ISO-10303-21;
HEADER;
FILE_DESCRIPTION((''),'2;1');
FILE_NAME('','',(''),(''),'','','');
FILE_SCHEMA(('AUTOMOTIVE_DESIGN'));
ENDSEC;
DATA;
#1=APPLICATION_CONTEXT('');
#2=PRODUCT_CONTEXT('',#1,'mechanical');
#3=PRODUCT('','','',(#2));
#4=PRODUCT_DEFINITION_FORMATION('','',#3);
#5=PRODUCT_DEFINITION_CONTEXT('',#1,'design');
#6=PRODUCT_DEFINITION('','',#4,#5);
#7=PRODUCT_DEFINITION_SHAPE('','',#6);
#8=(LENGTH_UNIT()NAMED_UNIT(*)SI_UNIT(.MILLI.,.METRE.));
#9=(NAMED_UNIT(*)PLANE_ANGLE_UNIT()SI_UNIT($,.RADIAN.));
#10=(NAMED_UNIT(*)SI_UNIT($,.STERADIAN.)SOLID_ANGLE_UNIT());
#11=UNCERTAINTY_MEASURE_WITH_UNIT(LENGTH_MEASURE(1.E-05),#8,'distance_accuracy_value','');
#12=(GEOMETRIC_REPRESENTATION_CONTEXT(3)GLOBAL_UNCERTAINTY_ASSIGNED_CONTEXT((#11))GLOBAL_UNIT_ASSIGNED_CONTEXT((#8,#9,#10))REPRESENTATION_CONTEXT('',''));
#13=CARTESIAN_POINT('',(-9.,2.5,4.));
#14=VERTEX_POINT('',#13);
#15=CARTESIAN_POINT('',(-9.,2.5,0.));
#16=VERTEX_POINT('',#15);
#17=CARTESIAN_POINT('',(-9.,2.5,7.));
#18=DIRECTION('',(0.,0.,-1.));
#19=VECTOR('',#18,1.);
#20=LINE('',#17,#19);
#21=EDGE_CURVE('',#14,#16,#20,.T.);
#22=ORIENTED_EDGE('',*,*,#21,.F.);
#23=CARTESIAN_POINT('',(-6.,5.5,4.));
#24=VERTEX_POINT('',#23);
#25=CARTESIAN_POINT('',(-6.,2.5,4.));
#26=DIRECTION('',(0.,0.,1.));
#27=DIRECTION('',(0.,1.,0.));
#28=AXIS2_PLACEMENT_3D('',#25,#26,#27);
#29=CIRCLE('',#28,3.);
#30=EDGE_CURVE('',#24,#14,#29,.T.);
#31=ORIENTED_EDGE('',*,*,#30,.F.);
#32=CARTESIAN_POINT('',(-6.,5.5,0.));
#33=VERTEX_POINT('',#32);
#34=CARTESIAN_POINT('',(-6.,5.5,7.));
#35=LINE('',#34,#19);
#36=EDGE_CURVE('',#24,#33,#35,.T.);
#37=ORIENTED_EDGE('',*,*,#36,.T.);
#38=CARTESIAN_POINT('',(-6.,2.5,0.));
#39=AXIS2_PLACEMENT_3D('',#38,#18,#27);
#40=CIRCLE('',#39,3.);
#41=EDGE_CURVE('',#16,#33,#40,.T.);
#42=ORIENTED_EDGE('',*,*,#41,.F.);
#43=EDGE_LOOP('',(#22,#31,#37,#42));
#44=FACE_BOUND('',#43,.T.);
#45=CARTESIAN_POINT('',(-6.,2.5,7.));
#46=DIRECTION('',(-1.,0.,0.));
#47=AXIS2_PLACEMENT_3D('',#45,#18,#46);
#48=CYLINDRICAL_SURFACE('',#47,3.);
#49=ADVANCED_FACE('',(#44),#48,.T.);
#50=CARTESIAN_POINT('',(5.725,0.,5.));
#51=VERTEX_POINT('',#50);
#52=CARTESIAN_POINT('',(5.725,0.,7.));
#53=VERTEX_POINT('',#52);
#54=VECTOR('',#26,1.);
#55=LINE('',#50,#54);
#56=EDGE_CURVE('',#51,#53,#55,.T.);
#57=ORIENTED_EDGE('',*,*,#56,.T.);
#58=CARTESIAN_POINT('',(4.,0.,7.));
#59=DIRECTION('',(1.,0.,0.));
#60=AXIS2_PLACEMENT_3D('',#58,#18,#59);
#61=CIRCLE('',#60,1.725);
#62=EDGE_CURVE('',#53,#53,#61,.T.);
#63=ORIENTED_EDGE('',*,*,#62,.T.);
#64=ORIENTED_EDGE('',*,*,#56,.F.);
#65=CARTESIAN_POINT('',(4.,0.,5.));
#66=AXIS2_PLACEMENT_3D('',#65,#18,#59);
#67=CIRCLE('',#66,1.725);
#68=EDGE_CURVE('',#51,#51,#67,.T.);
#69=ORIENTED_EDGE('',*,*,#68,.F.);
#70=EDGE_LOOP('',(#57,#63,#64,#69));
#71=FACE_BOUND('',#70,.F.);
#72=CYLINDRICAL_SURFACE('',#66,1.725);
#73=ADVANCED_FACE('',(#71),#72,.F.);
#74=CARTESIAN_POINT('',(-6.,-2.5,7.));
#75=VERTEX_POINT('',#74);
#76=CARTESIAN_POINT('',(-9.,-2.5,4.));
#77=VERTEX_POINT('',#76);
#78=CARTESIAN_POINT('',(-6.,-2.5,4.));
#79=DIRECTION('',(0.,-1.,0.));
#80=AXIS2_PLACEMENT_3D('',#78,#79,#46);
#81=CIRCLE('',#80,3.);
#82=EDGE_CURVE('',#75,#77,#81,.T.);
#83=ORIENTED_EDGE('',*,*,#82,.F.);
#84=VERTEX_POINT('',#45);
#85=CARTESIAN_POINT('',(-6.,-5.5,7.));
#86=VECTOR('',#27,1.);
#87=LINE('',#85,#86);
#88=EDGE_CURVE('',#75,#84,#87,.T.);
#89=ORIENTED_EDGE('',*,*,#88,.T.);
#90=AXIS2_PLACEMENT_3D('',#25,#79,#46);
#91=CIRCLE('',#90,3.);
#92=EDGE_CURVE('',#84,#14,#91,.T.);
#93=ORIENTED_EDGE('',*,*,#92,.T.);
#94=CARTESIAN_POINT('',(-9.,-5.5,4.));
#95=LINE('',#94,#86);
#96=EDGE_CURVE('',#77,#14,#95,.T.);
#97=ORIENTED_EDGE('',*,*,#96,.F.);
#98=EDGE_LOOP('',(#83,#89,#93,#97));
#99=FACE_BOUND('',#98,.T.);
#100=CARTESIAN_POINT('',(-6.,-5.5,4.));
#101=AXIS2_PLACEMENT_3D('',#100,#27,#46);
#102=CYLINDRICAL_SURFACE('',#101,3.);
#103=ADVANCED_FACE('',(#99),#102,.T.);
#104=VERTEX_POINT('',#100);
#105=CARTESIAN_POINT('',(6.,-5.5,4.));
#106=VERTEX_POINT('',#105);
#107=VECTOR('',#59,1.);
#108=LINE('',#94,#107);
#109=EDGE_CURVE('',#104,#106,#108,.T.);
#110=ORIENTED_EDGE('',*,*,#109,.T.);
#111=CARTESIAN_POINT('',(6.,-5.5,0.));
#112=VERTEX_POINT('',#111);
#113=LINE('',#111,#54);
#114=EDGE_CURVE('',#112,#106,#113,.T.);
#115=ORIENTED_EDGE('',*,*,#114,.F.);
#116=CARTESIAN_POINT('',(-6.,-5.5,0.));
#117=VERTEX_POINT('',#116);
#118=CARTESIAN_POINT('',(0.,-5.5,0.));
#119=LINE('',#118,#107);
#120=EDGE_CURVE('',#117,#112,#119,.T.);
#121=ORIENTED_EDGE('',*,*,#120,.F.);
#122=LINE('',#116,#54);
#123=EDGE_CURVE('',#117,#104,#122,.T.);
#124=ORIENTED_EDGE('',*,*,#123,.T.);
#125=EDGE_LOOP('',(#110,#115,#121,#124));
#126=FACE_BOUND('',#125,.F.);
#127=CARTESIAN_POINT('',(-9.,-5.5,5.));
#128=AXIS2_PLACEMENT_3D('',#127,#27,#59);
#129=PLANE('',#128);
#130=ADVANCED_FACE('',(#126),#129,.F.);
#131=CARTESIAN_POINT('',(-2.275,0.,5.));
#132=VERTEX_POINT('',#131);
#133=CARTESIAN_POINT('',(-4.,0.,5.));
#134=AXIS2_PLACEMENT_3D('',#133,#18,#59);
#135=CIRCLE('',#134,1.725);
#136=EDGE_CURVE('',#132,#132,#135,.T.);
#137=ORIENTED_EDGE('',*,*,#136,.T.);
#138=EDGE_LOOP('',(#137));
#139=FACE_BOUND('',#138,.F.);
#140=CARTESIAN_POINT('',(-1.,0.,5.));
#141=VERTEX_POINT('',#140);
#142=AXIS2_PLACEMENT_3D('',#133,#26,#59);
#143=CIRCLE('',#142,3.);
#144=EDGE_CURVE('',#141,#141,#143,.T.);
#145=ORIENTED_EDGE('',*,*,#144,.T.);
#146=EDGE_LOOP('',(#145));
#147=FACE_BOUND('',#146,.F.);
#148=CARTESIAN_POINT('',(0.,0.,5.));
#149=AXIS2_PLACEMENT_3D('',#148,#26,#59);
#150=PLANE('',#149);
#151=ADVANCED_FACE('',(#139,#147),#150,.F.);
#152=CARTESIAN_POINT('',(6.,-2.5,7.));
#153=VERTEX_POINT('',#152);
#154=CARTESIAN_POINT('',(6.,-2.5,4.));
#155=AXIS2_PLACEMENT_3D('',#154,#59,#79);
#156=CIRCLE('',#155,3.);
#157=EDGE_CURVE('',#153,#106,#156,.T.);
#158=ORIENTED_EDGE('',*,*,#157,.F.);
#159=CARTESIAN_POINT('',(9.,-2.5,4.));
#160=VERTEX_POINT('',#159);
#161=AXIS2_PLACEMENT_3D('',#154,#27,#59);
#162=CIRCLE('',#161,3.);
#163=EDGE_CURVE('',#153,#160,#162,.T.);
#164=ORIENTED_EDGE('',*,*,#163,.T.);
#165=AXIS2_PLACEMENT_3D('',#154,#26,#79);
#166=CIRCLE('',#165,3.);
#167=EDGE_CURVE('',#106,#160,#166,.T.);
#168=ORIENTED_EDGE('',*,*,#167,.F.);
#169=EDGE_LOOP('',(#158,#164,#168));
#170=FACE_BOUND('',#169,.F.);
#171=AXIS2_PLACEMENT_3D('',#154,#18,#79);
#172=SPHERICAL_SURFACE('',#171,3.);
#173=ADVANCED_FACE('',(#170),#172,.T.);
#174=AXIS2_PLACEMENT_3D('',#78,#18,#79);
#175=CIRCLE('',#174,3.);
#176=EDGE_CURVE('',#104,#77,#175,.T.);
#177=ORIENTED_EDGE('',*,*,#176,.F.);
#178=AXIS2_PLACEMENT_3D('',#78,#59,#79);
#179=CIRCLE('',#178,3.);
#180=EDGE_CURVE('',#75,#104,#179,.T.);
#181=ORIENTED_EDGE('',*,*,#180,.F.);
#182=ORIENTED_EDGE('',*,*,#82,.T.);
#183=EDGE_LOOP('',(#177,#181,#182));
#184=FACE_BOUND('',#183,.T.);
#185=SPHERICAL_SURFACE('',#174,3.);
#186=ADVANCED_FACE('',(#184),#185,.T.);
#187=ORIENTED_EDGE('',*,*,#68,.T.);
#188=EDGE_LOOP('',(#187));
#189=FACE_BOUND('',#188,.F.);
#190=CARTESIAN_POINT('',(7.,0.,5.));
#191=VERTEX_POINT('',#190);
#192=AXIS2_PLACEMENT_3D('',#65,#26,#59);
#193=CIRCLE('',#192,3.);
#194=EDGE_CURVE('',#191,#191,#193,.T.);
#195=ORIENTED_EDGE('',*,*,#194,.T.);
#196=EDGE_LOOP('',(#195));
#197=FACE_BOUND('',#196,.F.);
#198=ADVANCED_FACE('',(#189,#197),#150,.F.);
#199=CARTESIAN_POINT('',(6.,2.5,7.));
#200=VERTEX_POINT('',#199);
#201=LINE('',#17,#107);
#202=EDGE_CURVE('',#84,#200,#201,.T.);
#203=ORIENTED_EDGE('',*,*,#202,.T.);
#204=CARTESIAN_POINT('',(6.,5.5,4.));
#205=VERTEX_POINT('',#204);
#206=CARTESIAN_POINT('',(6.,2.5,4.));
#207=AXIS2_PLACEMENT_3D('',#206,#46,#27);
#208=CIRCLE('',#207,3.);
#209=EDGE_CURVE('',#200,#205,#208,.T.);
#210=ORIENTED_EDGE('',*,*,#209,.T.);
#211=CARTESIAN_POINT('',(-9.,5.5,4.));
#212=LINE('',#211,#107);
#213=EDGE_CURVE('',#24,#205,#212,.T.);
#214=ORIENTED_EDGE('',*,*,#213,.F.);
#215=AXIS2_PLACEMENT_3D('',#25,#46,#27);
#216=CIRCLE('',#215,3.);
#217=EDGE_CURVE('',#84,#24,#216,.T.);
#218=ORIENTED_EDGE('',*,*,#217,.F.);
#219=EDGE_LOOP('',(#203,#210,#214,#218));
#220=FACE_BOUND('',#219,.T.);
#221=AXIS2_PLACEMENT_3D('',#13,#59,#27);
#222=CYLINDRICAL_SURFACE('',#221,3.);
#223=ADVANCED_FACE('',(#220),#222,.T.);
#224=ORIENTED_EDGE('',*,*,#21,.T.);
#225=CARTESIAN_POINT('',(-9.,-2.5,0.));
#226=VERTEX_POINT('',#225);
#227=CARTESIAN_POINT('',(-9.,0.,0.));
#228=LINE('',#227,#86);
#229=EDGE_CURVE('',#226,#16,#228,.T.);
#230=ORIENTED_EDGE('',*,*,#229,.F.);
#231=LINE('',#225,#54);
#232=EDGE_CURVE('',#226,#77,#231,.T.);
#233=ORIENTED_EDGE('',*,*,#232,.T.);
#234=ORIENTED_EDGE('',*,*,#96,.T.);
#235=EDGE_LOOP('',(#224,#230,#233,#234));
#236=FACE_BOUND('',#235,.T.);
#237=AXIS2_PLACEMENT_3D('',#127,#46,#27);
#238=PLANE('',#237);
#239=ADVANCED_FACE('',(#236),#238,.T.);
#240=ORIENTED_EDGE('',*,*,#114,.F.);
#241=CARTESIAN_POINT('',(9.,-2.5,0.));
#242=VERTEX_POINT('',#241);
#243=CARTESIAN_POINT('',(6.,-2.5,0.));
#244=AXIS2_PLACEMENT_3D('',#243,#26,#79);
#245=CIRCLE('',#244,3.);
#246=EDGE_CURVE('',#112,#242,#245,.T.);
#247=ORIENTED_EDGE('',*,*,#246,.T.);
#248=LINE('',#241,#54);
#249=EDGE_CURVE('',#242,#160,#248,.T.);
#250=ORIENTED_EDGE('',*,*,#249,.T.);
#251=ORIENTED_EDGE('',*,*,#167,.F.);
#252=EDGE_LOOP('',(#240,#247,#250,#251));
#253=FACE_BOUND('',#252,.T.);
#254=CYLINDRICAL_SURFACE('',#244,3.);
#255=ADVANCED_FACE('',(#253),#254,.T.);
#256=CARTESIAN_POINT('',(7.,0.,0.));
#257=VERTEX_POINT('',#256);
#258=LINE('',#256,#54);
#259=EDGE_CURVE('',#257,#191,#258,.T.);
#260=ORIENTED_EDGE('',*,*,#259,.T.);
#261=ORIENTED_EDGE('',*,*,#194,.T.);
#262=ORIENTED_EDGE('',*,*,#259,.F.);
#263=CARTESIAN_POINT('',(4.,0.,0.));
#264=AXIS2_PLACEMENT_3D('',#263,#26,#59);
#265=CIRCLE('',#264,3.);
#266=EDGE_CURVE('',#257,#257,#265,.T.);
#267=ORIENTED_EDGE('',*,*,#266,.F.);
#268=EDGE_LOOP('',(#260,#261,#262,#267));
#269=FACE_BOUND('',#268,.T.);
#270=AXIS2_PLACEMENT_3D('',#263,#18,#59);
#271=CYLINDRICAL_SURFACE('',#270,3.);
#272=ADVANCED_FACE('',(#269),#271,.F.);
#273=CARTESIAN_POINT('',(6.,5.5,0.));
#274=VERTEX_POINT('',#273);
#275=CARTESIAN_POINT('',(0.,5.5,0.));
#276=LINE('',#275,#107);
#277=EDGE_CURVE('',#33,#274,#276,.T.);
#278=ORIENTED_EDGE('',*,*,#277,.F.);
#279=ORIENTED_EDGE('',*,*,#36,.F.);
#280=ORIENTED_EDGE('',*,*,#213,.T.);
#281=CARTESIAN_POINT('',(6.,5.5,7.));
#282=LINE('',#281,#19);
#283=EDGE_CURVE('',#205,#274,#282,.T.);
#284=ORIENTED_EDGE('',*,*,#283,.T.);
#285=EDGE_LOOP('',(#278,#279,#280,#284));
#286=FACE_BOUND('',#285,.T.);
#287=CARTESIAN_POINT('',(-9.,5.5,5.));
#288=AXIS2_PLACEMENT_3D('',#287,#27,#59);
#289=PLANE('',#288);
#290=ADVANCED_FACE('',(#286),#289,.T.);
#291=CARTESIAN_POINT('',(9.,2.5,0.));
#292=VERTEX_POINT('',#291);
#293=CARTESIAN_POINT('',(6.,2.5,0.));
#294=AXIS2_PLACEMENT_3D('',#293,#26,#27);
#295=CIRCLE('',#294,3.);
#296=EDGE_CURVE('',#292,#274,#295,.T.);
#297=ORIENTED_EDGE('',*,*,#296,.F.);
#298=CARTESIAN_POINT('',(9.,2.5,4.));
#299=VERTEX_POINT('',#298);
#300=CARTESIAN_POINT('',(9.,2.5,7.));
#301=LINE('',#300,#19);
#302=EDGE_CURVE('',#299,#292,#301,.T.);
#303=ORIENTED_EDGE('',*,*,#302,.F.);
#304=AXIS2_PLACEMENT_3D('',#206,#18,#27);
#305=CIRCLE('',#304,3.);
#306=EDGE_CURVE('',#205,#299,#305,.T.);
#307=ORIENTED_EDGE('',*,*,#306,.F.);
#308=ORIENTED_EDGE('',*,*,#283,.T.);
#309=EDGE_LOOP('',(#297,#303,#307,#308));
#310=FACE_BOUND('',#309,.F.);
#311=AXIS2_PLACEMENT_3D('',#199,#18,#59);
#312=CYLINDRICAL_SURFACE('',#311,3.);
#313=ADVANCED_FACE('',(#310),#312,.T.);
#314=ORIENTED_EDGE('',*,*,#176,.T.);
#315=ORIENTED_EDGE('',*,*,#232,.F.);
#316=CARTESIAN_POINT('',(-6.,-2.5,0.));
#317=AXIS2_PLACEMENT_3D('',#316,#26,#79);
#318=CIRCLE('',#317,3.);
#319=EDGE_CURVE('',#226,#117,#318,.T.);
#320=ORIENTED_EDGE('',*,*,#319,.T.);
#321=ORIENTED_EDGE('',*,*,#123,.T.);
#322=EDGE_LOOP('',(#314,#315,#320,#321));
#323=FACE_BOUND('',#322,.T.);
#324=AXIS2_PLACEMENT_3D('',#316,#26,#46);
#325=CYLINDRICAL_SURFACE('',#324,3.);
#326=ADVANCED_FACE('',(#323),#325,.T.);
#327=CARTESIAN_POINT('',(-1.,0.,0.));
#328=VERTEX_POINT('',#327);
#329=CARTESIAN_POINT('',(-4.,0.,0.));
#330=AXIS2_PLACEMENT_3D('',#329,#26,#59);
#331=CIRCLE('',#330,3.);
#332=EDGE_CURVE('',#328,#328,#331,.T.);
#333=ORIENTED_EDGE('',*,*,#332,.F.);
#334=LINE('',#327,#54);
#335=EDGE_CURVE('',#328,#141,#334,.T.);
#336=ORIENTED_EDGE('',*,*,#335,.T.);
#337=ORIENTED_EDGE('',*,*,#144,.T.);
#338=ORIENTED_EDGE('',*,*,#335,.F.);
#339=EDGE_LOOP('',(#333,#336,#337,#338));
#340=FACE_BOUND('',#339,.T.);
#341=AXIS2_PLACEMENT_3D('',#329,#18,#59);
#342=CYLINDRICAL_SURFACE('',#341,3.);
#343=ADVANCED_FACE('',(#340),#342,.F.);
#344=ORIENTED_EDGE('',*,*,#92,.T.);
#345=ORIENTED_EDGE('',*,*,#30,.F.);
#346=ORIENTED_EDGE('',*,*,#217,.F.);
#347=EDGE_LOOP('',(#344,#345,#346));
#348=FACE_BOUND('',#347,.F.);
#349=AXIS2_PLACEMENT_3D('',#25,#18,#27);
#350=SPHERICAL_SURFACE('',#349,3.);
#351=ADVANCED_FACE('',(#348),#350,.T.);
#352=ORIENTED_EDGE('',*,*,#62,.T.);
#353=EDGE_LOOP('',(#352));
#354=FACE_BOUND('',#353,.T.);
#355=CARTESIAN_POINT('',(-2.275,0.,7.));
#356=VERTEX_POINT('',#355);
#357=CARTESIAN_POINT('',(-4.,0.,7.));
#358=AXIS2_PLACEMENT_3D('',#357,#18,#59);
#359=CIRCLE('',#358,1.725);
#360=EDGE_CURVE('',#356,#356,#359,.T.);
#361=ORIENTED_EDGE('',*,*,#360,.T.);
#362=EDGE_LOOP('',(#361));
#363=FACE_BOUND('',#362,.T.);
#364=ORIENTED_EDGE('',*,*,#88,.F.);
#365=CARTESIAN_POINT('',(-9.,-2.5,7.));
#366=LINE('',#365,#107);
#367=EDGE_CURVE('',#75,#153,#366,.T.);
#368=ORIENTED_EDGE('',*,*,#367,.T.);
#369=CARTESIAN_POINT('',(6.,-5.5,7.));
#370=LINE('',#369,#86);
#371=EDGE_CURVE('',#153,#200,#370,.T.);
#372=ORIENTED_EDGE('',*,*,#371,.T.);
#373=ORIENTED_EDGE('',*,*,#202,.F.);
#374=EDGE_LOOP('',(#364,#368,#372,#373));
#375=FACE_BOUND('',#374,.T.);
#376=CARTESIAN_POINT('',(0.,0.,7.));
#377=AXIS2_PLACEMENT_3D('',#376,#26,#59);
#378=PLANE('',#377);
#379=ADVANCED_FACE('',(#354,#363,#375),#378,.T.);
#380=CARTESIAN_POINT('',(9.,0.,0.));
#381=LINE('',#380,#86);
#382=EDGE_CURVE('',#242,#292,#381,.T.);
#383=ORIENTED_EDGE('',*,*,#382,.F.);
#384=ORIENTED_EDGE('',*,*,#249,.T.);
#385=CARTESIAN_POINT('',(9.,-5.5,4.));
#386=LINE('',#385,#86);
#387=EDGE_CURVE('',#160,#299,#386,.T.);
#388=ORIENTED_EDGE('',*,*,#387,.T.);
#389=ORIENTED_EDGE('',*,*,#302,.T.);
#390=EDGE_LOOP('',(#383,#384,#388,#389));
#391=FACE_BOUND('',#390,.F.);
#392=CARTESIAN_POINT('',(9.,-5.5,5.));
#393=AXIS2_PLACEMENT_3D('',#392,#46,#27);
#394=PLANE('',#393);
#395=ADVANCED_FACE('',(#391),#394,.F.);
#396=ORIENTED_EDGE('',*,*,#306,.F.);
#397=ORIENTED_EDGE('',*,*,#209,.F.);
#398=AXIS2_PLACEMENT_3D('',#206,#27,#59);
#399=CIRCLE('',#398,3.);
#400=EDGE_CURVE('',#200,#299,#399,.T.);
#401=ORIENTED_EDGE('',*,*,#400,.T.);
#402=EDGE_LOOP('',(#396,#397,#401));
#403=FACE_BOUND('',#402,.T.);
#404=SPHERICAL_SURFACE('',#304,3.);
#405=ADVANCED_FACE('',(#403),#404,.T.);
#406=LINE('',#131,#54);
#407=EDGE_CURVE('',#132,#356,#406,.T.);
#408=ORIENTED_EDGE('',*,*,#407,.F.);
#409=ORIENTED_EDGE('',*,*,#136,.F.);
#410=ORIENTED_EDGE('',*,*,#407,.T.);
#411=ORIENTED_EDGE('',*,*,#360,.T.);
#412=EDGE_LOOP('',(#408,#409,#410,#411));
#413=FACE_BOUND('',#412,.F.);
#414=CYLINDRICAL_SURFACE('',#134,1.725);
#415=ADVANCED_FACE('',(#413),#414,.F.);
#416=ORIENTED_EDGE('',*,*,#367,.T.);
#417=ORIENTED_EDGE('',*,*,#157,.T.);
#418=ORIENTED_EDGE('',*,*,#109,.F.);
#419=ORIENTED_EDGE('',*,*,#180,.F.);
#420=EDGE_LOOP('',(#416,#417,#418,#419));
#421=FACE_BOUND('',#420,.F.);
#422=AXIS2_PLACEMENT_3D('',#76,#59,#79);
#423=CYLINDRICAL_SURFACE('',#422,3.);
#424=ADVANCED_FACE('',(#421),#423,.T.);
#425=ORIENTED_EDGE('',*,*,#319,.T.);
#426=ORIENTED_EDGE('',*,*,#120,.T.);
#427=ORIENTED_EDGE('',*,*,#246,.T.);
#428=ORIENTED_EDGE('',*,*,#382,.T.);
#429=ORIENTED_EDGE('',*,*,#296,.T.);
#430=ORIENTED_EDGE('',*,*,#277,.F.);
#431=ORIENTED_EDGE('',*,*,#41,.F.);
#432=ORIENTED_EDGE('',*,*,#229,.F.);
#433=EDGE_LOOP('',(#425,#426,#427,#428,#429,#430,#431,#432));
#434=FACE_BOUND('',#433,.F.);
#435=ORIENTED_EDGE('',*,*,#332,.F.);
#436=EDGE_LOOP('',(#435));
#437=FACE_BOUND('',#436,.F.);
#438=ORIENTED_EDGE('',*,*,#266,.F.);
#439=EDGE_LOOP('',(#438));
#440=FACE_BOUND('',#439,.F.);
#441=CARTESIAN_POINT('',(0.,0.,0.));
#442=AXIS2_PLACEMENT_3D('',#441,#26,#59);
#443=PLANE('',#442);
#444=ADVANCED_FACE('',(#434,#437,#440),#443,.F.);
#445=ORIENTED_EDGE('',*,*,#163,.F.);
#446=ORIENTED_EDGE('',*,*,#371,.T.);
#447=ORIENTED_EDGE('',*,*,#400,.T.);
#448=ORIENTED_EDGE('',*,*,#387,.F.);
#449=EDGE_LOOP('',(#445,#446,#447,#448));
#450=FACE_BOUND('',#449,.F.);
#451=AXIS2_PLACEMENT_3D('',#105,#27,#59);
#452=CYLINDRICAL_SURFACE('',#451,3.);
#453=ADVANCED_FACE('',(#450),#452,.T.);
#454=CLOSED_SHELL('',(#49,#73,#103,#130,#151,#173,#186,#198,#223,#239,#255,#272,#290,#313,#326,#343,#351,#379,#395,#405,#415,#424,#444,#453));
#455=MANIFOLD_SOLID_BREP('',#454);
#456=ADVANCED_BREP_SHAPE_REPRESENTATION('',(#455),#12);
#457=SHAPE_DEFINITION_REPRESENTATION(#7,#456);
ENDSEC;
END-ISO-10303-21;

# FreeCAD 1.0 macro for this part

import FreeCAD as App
import Part
import Sketcher

V = App.Vector


def edges_at(feature, points):
    """Names of the edges that pass closest to the given points."""
    edges = feature.Shape.Edges
    near = lambda p: min(range(len(edges)), key=lambda i: edges[i].distToShape(Part.Vertex(*p))[0])
    return sorted({f"Edge{near(p) + 1}" for p in points})

doc = App.newDocument("Part")
body = doc.addObject("PartDesign::Body", "Body")

# Sketch on XY plane
sketch1 = body.newObject("Sketcher::SketchObject", "Sketch")
sketch1.AttachmentSupport = (doc.getObject("XY_Plane"), [""])
sketch1.MapMode = "FlatFace"
sketch1.addGeometry([
    Part.LineSegment(V(-9, 5.5, 0), V(-9, -5.5, 0)),  # 0
    Part.LineSegment(V(-9, -5.5, 0), V(9, -5.5, 0)),  # 1
    Part.LineSegment(V(9, -5.5, 0), V(9, 5.5, 0)),  # 2
    Part.LineSegment(V(9, 5.5, 0), V(-9, 5.5, 0)),  # 3
    Part.Circle(V(-4, 0, 0), V(0, 0, 1), 3),  # 4
    Part.Circle(V(4, 0, 0), V(0, 0, 1), 3),  # 5
], False)
sketch1.addConstraint([
    Sketcher.Constraint("Coincident", 0, 2, 1, 1),
    Sketcher.Constraint("Coincident", 1, 2, 2, 1),
    Sketcher.Constraint("Coincident", 2, 2, 3, 1),
    Sketcher.Constraint("Coincident", 3, 2, 0, 1),
    Sketcher.Constraint("Vertical", 0),
    Sketcher.Constraint("Horizontal", 1),
    Sketcher.Constraint("Vertical", 2),
    Sketcher.Constraint("Horizontal", 3),
    Sketcher.Constraint("Equal", 4, 5),
    Sketcher.Constraint("Symmetric", 4, 3, 5, 3, -1, 1),
    Sketcher.Constraint("Symmetric", 0, 2, 2, 2, -1, 1),
    Sketcher.Constraint("PointOnObject", 4, 3, -1),
    Sketcher.Constraint("Diameter", 4, 6.0),
    Sketcher.Constraint("DistanceX", 1, 1, 1, 2, 18.0),
    Sketcher.Constraint("DistanceY", 0, 2, 0, 1, 11.0),
    Sketcher.Constraint("DistanceX", 4, 3, -1, 1, 4.0),
])
pad1 = body.newObject("PartDesign::Pad", "Pad")
pad1.Profile = sketch1
pad1.Length = 5

# Sketch on XY plane
sketch2 = body.newObject("Sketcher::SketchObject", "Sketch001")
sketch2.AttachmentSupport = (doc.getObject("XY_Plane"), [""])
sketch2.MapMode = "FlatFace"
sketch2.AttachmentOffset = App.Placement(V(0, 0, 5), App.Rotation())
sketch2.addGeometry([
    Part.LineSegment(V(-9, 6, 0), V(-9, -6, 0)),
    Part.LineSegment(V(-9, -6, 0), V(9, -6, 0)),
    Part.LineSegment(V(9, -6, 0), V(9, 6, 0)),
    Part.LineSegment(V(9, 6, 0), V(-9, 6, 0)),
], False)
sketch2.addConstraint([
    Sketcher.Constraint("Coincident", 0, 2, 1, 1),
    Sketcher.Constraint("Coincident", 1, 2, 2, 1),
    Sketcher.Constraint("Coincident", 2, 2, 3, 1),
    Sketcher.Constraint("Coincident", 3, 2, 0, 1),
    Sketcher.Constraint("Vertical", 0),
    Sketcher.Constraint("Horizontal", 1),
    Sketcher.Constraint("Vertical", 2),
    Sketcher.Constraint("Horizontal", 3),
    Sketcher.Constraint("Symmetric", 0, 2, 2, 2, -1, 1),
    Sketcher.Constraint("DistanceX", 1, 1, 1, 2, 18.0),
    Sketcher.Constraint("DistanceY", 0, 2, 0, 1, 11.0),
])
pad2 = body.newObject("PartDesign::Pad", "Pad001")
pad2.Profile = sketch2
pad2.Length = 2
doc.recompute()

fillet = body.newObject("PartDesign::Fillet", "Fillet")
fillet.Base = (pad2, edges_at(pad2, [
    (-9, 5.5, 3.5),
    (-9, -5.5, 3.5),
    (9, -5.5, 3.5),
    (9, 5.5, 3.5),
    (0, 5.5, 7),
    (0, -5.5, 7),
    (-9, 0, 7),
    (9, 0, 7),
]))
fillet.Radius = 3

# Sketch on XY plane
sketch3 = body.newObject("Sketcher::SketchObject", "Sketch002")
sketch3.AttachmentSupport = (doc.getObject("XY_Plane"), [""])
sketch3.MapMode = "FlatFace"
sketch3.AttachmentOffset = App.Placement(V(0, 0, 5), App.Rotation())
sketch3.addGeometry([
    Part.Circle(V(-4, 0, 0), V(0, 0, 1), 1.7),
    Part.Circle(V(4, 0, 0), V(0, 0, 1), 1.7),
], False)
sketch3.addConstraint([
    Sketcher.Constraint("Equal", 0, 1),
    Sketcher.Constraint("Symmetric", 0, 3, 1, 3, -1, 1),
    Sketcher.Constraint("PointOnObject", 0, 3, -1),
    Sketcher.Constraint("Diameter", 0, 3.45),
    Sketcher.Constraint("DistanceX", 0, 3, -1, 1, 4.0),
])
pocket1 = body.newObject("PartDesign::Pocket", "Pocket")
pocket1.Profile = sketch3
pocket1.Length = 25
pocket1.Reversed = True

doc.recompute()
